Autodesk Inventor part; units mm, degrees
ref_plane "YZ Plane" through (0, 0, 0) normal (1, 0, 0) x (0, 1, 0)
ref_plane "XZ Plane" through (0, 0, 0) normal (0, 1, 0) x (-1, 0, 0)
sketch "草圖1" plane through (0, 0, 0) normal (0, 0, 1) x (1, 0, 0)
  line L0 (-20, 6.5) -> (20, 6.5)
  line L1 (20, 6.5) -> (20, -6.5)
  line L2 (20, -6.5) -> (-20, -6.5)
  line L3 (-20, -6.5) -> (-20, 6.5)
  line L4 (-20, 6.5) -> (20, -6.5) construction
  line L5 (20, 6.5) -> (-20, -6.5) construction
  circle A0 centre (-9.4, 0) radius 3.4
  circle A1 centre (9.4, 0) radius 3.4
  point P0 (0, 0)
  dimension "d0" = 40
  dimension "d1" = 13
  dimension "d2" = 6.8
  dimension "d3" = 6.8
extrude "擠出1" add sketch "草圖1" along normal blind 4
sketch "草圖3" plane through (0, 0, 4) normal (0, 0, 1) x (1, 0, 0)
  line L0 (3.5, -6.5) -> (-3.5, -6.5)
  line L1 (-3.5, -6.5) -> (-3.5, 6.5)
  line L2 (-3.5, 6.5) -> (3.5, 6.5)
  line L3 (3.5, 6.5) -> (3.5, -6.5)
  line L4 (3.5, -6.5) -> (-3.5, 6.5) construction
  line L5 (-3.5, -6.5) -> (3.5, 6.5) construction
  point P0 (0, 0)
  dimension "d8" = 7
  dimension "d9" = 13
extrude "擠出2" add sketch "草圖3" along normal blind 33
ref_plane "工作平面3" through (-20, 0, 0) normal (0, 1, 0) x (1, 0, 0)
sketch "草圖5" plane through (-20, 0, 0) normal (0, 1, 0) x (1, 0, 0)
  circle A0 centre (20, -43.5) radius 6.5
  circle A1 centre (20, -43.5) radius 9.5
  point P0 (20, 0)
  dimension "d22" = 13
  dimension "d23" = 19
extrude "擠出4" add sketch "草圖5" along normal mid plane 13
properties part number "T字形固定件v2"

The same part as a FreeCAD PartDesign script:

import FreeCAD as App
import Part
import Sketcher


def add_polygon(sketch, points):
    """Adds a closed chain of lines whose ends are joined by coincident constraints."""
    first, n = sketch.GeometryCount, len(points)
    for a, b in zip(points, points[1:] + points[:1]):
        sketch.addGeometry(Part.LineSegment(App.Vector(*a, 0), App.Vector(*b, 0)), False)
    for i in range(n):
        sketch.addConstraint(Sketcher.Constraint("Coincident", first + i, 2, first + (i + 1) % n, 1))

doc = App.newDocument("Part")
params = doc.addObject("Spreadsheet::Sheet", "Params")
for row, (alias, value) in enumerate([
    ("sketch1_diameter", "6.8 mm"),
    ("sketch1_width", "40 mm"),
    ("sketch1_height", "13 mm"),
    ("pad1_length", "4 mm"),
    ("sketch2_width", "7 mm"),
    ("sketch2_height", "13 mm"),
    ("pad2_length", "33 mm"),
    ("sketch3_diameter", "19 mm"),
    ("sketch3_diameter2", "13 mm"),
    ("pad3_length", "13 mm"),
], start=1):
    params.set(f"A{row}", alias)
    params.set(f"B{row}", "=" + value)
    params.setAlias(f"B{row}", alias)

body = doc.addObject("PartDesign::Body", "Body")

sketch1 = body.newObject("Sketcher::SketchObject", "Sketch")
sketch1.AttachmentSupport = (doc.getObject("XY_Plane"), [""])
sketch1.MapMode = "FlatFace"
add_polygon(sketch1, [(20, 6.5), (-20, 6.5), (-20, -6.5), (20, -6.5)])
sketch1.addGeometry(Part.Circle(App.Vector(-9.4, 0, 0), App.Vector(0, 0, 1), 3.4), False)
sketch1.addGeometry(Part.Circle(App.Vector(9.4, 0, 0), App.Vector(0, 0, 1), 3.4), False)
sketch1.addConstraint([
    Sketcher.Constraint("Horizontal", 0),
    Sketcher.Constraint("Vertical", 1),
    Sketcher.Constraint("Horizontal", 2),
    Sketcher.Constraint("Vertical", 3),
    Sketcher.Constraint("Equal", 4, 5),
    Sketcher.Constraint("Symmetric", 4, 3, 5, 3, -1, 1),
    Sketcher.Constraint("Symmetric", 0, 2, 2, 2, -1, 1),
    Sketcher.Constraint("PointOnObject", 4, 3, -1),
    Sketcher.Constraint("Diameter", 4, 6.8),
    Sketcher.Constraint("DistanceX", 0, 2, 0, 1, 40.0),
    Sketcher.Constraint("DistanceY", 1, 2, 1, 1, 13.0),
    Sketcher.Constraint("DistanceX", 4, 3, -1, 1, 9.4),
])
sketch1.setExpression("Constraints[12]", "Params.sketch1_diameter")
sketch1.setExpression("Constraints[13]", "Params.sketch1_width")
sketch1.setExpression("Constraints[14]", "Params.sketch1_height")
pad1 = body.newObject("PartDesign::Pad", "Pad")
pad1.Profile = sketch1
pad1.setExpression("Length", "Params.pad1_length")

sketch2 = body.newObject("Sketcher::SketchObject", "Sketch001")
sketch2.AttachmentSupport = (doc.getObject("XY_Plane"), [""])
sketch2.MapMode = "FlatFace"
sketch2.AttachmentOffset = App.Placement(App.Vector(0, 0, 4), App.Rotation())
add_polygon(sketch2, [(-4, -6), (4, -6), (4, 6), (-4, 6)])
sketch2.addConstraint([
    Sketcher.Constraint("Horizontal", 0),
    Sketcher.Constraint("Vertical", 1),
    Sketcher.Constraint("Horizontal", 2),
    Sketcher.Constraint("Vertical", 3),
    Sketcher.Constraint("Symmetric", 0, 2, 2, 2, -1, 1),
    Sketcher.Constraint("DistanceX", 0, 1, 0, 2, 7.0),
    Sketcher.Constraint("DistanceY", 1, 1, 1, 2, 13.0),
])
sketch2.setExpression("Constraints[9]", "Params.sketch2_width")
sketch2.setExpression("Constraints[10]", "Params.sketch2_height")
pad2 = body.newObject("PartDesign::Pad", "Pad001")
pad2.Profile = sketch2
pad2.setExpression("Length", "Params.pad2_length")

sketch3 = body.newObject("Sketcher::SketchObject", "Sketch002")
sketch3.AttachmentSupport = (doc.getObject("XZ_Plane"), [""])
sketch3.MapMode = "FlatFace"
sketch3.addGeometry([
    Part.Circle(App.Vector(0, 44, 0), App.Vector(0, 0, 1), 10),
    Part.Circle(App.Vector(0, 44, 0), App.Vector(0, 0, 1), 6),
], False)
sketch3.addConstraint([
    Sketcher.Constraint("Coincident", 1, 3, 0, 3),
    Sketcher.Constraint("PointOnObject", 0, 3, -2),
    Sketcher.Constraint("Diameter", 0, 19.0),
    Sketcher.Constraint("Diameter", 1, 13.0),
    Sketcher.Constraint("DistanceY", -1, 1, 0, 3, 43.5),
])
sketch3.setExpression("Constraints[2]", "Params.sketch3_diameter")
sketch3.setExpression("Constraints[3]", "Params.sketch3_diameter2")
pad3 = body.newObject("PartDesign::Pad", "Pad002")
pad3.Profile = sketch3
pad3.setExpression("Length", "Params.pad3_length")
pad3.Midplane = True

doc.recompute()
